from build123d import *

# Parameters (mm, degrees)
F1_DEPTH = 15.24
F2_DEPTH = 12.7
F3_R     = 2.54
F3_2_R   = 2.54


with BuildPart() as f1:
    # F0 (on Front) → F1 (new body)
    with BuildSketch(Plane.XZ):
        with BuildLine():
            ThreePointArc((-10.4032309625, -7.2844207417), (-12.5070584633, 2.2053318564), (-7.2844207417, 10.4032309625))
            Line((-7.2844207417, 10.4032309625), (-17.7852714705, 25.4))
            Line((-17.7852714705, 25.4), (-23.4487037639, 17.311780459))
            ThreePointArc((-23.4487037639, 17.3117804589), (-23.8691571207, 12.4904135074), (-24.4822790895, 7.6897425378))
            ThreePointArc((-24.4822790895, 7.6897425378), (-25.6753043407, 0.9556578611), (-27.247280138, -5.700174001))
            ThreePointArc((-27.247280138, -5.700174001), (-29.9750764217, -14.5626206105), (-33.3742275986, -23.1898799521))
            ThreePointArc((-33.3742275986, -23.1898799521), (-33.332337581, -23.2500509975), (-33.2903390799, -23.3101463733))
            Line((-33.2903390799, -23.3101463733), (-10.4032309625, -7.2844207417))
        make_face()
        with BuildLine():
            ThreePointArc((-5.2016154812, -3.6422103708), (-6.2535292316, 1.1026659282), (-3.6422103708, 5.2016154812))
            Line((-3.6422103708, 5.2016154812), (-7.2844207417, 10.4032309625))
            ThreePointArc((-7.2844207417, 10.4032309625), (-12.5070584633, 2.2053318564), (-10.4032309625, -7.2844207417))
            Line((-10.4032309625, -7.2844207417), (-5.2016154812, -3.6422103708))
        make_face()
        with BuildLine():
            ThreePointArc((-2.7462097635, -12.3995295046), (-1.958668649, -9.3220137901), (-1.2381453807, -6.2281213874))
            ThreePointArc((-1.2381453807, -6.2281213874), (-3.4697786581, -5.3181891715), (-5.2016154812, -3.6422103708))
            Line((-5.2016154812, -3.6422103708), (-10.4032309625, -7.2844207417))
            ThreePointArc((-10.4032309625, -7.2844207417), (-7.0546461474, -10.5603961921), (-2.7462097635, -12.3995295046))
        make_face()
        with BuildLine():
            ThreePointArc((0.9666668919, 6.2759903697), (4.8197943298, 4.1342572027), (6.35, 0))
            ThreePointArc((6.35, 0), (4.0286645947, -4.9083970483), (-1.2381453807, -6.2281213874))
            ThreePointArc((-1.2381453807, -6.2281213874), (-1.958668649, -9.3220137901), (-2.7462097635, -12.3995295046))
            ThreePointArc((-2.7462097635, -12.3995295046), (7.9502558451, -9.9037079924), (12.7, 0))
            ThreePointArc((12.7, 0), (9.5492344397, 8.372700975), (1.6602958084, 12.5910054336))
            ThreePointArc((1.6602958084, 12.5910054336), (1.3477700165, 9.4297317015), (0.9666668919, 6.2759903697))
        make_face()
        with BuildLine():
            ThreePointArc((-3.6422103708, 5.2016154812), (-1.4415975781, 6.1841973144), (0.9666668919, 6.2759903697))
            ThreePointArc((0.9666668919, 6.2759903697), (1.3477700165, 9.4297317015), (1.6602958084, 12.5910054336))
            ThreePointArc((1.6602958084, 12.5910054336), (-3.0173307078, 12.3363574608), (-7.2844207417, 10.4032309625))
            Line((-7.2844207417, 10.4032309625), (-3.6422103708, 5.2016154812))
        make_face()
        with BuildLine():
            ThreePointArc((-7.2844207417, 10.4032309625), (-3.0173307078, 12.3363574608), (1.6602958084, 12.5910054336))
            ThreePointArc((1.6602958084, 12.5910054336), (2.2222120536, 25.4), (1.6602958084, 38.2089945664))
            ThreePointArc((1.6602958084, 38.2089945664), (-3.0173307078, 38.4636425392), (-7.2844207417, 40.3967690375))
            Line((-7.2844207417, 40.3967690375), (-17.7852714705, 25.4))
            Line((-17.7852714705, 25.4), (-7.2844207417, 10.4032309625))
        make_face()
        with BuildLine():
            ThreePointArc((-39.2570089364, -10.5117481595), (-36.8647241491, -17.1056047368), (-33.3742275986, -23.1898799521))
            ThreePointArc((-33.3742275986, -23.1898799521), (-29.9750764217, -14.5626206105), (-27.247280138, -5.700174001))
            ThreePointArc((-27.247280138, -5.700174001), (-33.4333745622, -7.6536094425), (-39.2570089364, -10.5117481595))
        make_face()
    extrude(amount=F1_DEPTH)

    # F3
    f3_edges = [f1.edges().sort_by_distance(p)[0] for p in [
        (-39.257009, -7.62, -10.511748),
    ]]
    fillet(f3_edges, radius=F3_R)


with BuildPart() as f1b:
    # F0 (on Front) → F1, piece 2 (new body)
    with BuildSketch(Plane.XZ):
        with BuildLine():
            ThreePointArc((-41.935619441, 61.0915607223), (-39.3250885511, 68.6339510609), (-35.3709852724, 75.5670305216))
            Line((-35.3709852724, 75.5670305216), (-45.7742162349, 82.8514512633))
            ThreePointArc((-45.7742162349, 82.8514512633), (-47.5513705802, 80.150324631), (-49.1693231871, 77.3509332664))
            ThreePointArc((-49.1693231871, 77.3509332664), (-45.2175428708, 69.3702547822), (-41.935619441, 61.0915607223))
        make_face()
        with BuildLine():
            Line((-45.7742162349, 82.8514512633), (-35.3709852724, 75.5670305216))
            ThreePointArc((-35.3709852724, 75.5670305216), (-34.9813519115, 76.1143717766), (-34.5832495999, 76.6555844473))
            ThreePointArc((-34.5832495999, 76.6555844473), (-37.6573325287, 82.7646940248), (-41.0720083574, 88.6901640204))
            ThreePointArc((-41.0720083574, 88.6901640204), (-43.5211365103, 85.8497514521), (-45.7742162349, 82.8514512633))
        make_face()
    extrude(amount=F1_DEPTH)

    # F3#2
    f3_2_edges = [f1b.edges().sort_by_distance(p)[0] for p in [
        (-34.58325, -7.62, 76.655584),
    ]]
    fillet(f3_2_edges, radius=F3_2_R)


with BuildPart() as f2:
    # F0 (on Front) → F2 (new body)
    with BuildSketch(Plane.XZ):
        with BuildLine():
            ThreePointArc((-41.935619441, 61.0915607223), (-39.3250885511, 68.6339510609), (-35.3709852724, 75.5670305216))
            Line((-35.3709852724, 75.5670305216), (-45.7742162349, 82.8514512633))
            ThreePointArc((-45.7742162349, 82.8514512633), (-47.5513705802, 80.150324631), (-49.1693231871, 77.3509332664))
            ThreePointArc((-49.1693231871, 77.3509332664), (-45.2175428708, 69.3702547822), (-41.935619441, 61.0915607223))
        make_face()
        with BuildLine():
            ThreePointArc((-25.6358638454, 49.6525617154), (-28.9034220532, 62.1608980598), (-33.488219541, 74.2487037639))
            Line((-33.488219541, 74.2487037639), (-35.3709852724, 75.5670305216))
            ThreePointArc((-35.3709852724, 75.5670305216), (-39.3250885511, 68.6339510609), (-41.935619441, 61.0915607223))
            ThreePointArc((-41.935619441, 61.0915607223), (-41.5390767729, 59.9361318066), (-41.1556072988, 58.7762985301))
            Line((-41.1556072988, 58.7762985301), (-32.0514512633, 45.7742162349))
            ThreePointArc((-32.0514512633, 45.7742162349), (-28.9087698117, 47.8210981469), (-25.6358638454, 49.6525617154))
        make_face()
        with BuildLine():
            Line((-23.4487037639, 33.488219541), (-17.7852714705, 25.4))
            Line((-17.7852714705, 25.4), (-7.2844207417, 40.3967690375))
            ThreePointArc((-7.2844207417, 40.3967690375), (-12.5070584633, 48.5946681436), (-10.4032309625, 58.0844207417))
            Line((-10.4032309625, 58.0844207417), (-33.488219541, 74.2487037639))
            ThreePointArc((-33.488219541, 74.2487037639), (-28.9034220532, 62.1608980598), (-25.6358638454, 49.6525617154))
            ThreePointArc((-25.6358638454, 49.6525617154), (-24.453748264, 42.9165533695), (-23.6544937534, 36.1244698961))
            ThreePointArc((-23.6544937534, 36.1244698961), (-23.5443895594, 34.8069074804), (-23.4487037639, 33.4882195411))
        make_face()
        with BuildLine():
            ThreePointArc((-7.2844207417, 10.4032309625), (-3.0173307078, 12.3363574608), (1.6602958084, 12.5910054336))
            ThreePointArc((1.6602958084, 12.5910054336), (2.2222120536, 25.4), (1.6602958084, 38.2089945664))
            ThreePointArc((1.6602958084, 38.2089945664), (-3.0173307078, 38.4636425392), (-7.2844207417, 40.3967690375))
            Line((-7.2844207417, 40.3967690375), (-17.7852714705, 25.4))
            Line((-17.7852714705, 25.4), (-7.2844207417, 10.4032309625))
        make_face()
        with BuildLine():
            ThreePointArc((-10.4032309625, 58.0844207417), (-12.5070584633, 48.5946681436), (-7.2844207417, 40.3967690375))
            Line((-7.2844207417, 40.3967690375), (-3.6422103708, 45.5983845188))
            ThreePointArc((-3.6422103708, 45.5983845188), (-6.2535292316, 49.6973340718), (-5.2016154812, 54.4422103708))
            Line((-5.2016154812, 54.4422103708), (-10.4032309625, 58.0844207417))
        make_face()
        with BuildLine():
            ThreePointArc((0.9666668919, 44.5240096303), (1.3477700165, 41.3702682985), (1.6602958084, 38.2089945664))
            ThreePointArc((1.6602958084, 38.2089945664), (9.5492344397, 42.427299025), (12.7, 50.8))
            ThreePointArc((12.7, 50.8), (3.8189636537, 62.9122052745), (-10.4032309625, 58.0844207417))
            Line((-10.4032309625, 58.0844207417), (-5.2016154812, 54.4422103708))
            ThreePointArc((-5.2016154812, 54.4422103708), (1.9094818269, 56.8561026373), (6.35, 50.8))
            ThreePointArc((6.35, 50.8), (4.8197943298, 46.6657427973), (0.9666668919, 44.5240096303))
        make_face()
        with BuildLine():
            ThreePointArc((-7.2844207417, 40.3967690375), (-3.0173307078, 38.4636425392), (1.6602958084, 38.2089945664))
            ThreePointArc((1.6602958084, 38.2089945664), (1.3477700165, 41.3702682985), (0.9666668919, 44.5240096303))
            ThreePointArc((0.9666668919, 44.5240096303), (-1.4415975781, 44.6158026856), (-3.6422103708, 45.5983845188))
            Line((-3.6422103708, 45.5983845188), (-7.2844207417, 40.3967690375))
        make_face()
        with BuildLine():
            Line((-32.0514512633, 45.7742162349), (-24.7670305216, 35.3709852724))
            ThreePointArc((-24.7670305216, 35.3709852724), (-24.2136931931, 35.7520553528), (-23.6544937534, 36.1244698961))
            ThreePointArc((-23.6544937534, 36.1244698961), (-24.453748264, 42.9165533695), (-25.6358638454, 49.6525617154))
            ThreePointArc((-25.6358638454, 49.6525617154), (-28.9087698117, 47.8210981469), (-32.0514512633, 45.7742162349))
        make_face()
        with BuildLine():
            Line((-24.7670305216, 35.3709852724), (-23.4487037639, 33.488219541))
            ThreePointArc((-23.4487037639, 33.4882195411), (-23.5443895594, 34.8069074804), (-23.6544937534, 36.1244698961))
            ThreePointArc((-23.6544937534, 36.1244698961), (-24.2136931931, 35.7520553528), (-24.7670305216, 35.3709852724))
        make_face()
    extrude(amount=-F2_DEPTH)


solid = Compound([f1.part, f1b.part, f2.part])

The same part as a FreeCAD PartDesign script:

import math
import FreeCAD as App
import Part
import Sketcher
from FreeCAD import Vector
Q = App.Units.Quantity


def edges_at(feature, points):
    """Names of the edges that pass closest to the given points."""
    edges = feature.Shape.Edges
    near = lambda p: min(range(len(edges)), key=lambda i: edges[i].distToShape(Part.Vertex(*p))[0])
    return sorted({f"Edge{near(p) + 1}" for p in points})

doc = App.newDocument("Part")
body = doc.addObject("PartDesign::Body", "Body")

# Sketch on XZ plane
sketch1 = body.newObject("Sketcher::SketchObject", "Sketch")
sketch1.AttachmentSupport = (doc.getObject("XZ_Plane"), [""])
sketch1.MapMode = "FlatFace"
sketch1.addGeometry([
    Part.LineSegment(Vector(-17.79, 25.4, 0), Vector(-23.45, 17.31, 0)),  # 0
    Part.ArcOfCircle(Part.Circle(Vector(-144.05, 25.4, 0), Vector(0, 0, 1), 120.87), math.radians(-8.43), math.radians(-3.84)),  # 1
    Part.ArcOfCircle(Part.Circle(Vector(-144.05, 25.4, 0), Vector(0, 0, 1), 120.87), math.radians(-14.91), math.radians(-8.43)),  # 2
    Part.ArcOfCircle(Part.Circle(Vector(-17.37, -47.74, 0), Vector(0, 0, 1), 43.18), math.radians(103.22), math.radians(120.45)),  # 3
    Part.ArcOfCircle(Part.Circle(Vector(0, 0, 0), Vector(0, 0, 1), 40.64), math.radians(-165.01), math.radians(-145.21)),  # 4
    Part.ArcOfCircle(Part.Circle(Vector(0, 0, 0), Vector(0, 0, 1), 40.64), math.radians(-145.21), math.radians(-145)),  # 5
    Part.LineSegment(Vector(-33.29, -23.31, 0), Vector(-10.4, -7.28, 0)),  # 6
    Part.ArcOfCircle(Part.Circle(Vector(0, 0, 0), Vector(0, 0, 1), 12.7), math.radians(-145), math.radians(-102)),  # 7
    Part.ArcOfCircle(Part.Circle(Vector(0, 0, 0), Vector(0, 0, 1), 12.7), math.radians(-102), math.radians(0)),  # 8
    Part.ArcOfCircle(Part.Circle(Vector(0, 0, 0), Vector(0, 0, 1), 12.7), math.radians(0), math.radians(82)),  # 9
    Part.ArcOfCircle(Part.Circle(Vector(-144.05, 25.4, 0), Vector(0, 0, 1), 146.27), math.radians(-5.02), math.radians(5.02)),  # 10
    Part.ArcOfCircle(Part.Circle(Vector(0, 50.8, 0), Vector(0, 0, 1), 12.7), math.radians(-125), math.radians(-82)),  # 11
    Part.LineSegment(Vector(-7.28, 40.4, 0), Vector(-17.79, 25.4, 0)),  # 12
    Part.ArcOfCircle(Part.Circle(Vector(0, 0, 0), Vector(0, 0, 1), 6.35), math.radians(0), math.radians(81)),  # 13
    Part.ArcOfCircle(Part.Circle(Vector(0, 0, 0), Vector(0, 0, 1), 6.35), math.radians(-101), math.radians(0)),  # 14
    Part.ArcOfCircle(Part.Circle(Vector(0, 0, 0), Vector(0, 0, 1), 6.35), math.radians(-145), math.radians(-101)),  # 15
    Part.ArcOfCircle(Part.Circle(Vector(0, 0, 0), Vector(0, 0, 1), 6.35), math.radians(125), math.radians(215)),  # 16
    Part.ArcOfCircle(Part.Circle(Vector(0, 0, 0), Vector(0, 0, 1), 6.35), math.radians(81), math.radians(125)),  # 17
], False)
sketch1.addConstraint([
    Sketcher.Constraint("Coincident", 0, 2, 1, 2),
    Sketcher.Constraint("Tangent", 1, 1, 2, 2),
    Sketcher.Constraint("Coincident", 2, 1, 3, 1),
    Sketcher.Constraint("Coincident", 3, 2, 4, 1),
    Sketcher.Constraint("Tangent", 4, 2, 5, 1),
    Sketcher.Constraint("Coincident", 5, 2, 6, 1),
    Sketcher.Constraint("Coincident", 6, 2, 7, 1),
    Sketcher.Constraint("Tangent", 7, 2, 8, 1),
    Sketcher.Constraint("Tangent", 8, 2, 9, 1),
    Sketcher.Constraint("Coincident", 9, 2, 10, 1),
    Sketcher.Constraint("Coincident", 10, 2, 11, 2),
    Sketcher.Constraint("Coincident", 11, 1, 12, 1),
    Sketcher.Constraint("Coincident", 12, 2, 0, 1),
    Sketcher.Constraint("Tangent", 13, 1, 14, 2),
    Sketcher.Constraint("Tangent", 14, 1, 15, 2),
    Sketcher.Constraint("Tangent", 15, 1, 16, 2),
    Sketcher.Constraint("Tangent", 16, 1, 17, 2),
    Sketcher.Constraint("Tangent", 17, 1, 13, 2),
    Sketcher.Constraint("Coincident", 4, 3, -1, 1),
    Sketcher.Constraint("Coincident", 7, 3, -1, 1),
    Sketcher.Constraint("Coincident", 9, 3, -1, 1),
    Sketcher.Constraint("Coincident", 13, 3, -1, 1),
    Sketcher.Constraint("Coincident", 15, 3, -1, 1),
    Sketcher.Constraint("Coincident", 10, 3, 1, 3),
    Sketcher.Constraint("Equal", 1, 2),
    Sketcher.Constraint("Equal", 9, 11),
    Sketcher.Constraint("PointOnObject", 11, 3, -2),
    Sketcher.Constraint("PointOnObject", 8, 2, -1),
    Sketcher.Constraint("PointOnObject", 13, 1, -1),
    Sketcher.Constraint("Parallel", 0, 12),
    Sketcher.Constraint("Horizontal", 10, 3, 12, 2),
    Sketcher.Constraint("Vertical", 9, 2, 10, 2),
    Sketcher.Constraint("Radius", 3, Q("1.7 in")),
    Sketcher.Constraint("Radius", 4, Q("1.6 in")),
    Sketcher.Constraint("Radius", 7, Q("0.5 in")),
    Sketcher.Constraint("Radius", 13, Q("0.25 in")),
    Sketcher.Constraint("DistanceY", -1, 1, 1, 3, Q("1 in")),
    Sketcher.Constraint("Angle", 0, Q("-125 deg")),
    Sketcher.Constraint("Angle", 6, Q("35 deg")),
    Sketcher.Constraint("Radius", 1, Q("120.87277 mm")),
    Sketcher.Constraint("Radius", 5, Q("40.639982 mm")),
    Sketcher.Constraint("Radius", 10, Q("146.27277 mm")),
    Sketcher.Constraint("DistanceX", 2, 1, 1, 1, Q("2.765001 mm")),
    Sketcher.Constraint("DistanceY", 5, 2, 3, 2, Q("12.798398 mm")),
    Sketcher.Constraint("DistanceX", 0, 2, 10, 2, Q("25.109 mm")),
    Sketcher.Constraint("DistanceX", 15, 1, 5, 3, Q("5.2016 mm")),
    Sketcher.Constraint("DistanceX", 1, 3, -1, 1, Q("144.050558 mm")),
    Sketcher.Constraint("DistanceX", 1, 1, -1, 1, Q("24.482279 mm")),
    Sketcher.Constraint("DistanceY", 3, 2, -1, 1, Q("10.511748 mm")),
    Sketcher.Constraint("DistanceY", 4, 2, -1, 1, Q("23.18988 mm")),
    Sketcher.Constraint("DistanceX", 7, 2, -1, 1, Q("2.74621 mm")),
    Sketcher.Constraint("DistanceY", 14, 1, -1, 1, Q("6.228121 mm")),
    Sketcher.Constraint("DistanceX", 16, 1, -1, 1, Q("3.64221 mm")),
    Sketcher.Constraint("DistanceY", -1, 1, 17, 1, Q("6.27599 mm")),
])
pad1 = body.newObject("PartDesign::Pad", "Pad")
pad1.Profile = sketch1
pad1.Length = Q("0.6 in")
doc.recompute()

fillet = body.newObject("PartDesign::Fillet", "Fillet")
fillet.Base = (pad1, edges_at(pad1, [(-39.257, -7.62, -10.512)]))
fillet.Radius = Q("0.1 in")
body2 = doc.addObject("PartDesign::Body", "Body001")

# Sketch on XZ plane
sketch2 = body2.newObject("Sketcher::SketchObject", "Sketch001")
sketch2.AttachmentSupport = (doc.getObject("XZ_Plane001"), [""])
sketch2.MapMode = "FlatFace"
sketch2.addGeometry([
    Part.ArcOfCircle(Part.Circle(Vector(0, 50.8, 0), Vector(0, 0, 1), 43.2), math.radians(145), math.radians(166)),  # 0
    Part.ArcOfCircle(Part.Circle(Vector(0, 50.8, 0), Vector(0, 0, 1), 43.2), math.radians(143.22), math.radians(145)),  # 1
    Part.ArcOfCircle(Part.Circle(Vector(-144.1, 25.4, 0), Vector(0, 0, 1), 120.9), math.radians(25.09), math.radians(31.57)),  # 2
    Part.ArcOfCircle(Part.Circle(Vector(0, 50.8, 0), Vector(0, 0, 1), 55.9), math.radians(137.31), math.radians(145)),  # 3
    Part.ArcOfCircle(Part.Circle(Vector(0, 50.8, 0), Vector(0, 0, 1), 55.9), math.radians(145), math.radians(151.63)),  # 4
    Part.ArcOfCircle(Part.Circle(Vector(-144.1, 25.4, 0), Vector(0, 0, 1), 108.2), math.radians(19.27), math.radians(28.7)),  # 5
], False)
sketch2.addConstraint([
    Sketcher.Constraint("Tangent", 0, 1, 1, 2),
    Sketcher.Constraint("Coincident", 1, 1, 2, 1),
    Sketcher.Constraint("Coincident", 2, 2, 3, 1),
    Sketcher.Constraint("Tangent", 3, 2, 4, 1),
    Sketcher.Constraint("Coincident", 4, 2, 5, 2),
    Sketcher.Constraint("Coincident", 5, 1, 0, 2),
    Sketcher.Constraint("Coincident", 3, 3, 0, 3),
    Sketcher.Constraint("Coincident", 5, 3, 2, 3),
    Sketcher.Constraint("Equal", 0, 1),
    Sketcher.Constraint("Equal", 3, 4),
    Sketcher.Constraint("PointOnObject", 0, 3, -2),
    Sketcher.Constraint("Radius", 0, Q("1.7 in")),
    Sketcher.Constraint("Radius", 3, Q("2.2 in")),
    Sketcher.Constraint("DistanceY", -1, 1, 0, 3, Q("2 in")),
    Sketcher.Constraint("DistanceY", -1, 1, 2, 3, Q("1 in")),
    Sketcher.Constraint("Radius", 2, Q("120.87277 mm")),
    Sketcher.Constraint("Radius", 5, Q("108.17277 mm")),
    Sketcher.Constraint("DistanceX", 4, 2, -1, 1, Q("1.9358001 in")),
    Sketcher.Constraint("DistanceY", -1, 1, 0, 1, Q("75.567031 mm")),
    Sketcher.Constraint("DistanceY", -1, 1, 3, 2, Q("82.851451 mm")),
])
pad2 = body2.newObject("PartDesign::Pad", "Pad001")
pad2.Profile = sketch2
pad2.Length = Q("0.6 in")
doc.recompute()

fillet2 = body2.newObject("PartDesign::Fillet", "Fillet001")
fillet2.Base = (pad2, edges_at(pad2, [(-34.583, -7.62, 76.656)]))
fillet2.Radius = Q("0.1 in")
body3 = doc.addObject("PartDesign::Body", "Body002")

# Sketch on XZ plane
sketch3 = body3.newObject("Sketcher::SketchObject", "Sketch002")
sketch3.AttachmentSupport = (doc.getObject("XZ_Plane002"), [""])
sketch3.MapMode = "FlatFace"
sketch3.addGeometry([
    Part.ArcOfCircle(Part.Circle(Vector(-144.1, 25.4, 0), Vector(0, 0, 1), 146.3), math.radians(-5.02), math.radians(5.02)),  # 0
    Part.ArcOfCircle(Part.Circle(Vector(0, 50.8, 0), Vector(0, 0, 1), 12.7), math.radians(-82), math.radians(0)),  # 1
    Part.ArcOfCircle(Part.Circle(Vector(0, 50.8, 0), Vector(0, 0, 1), 12.7), math.radians(0), math.radians(145)),  # 2
    Part.LineSegment(Vector(-10.4, 58.1, 0), Vector(-33.5, 74.2, 0)),  # 3
    Part.LineSegment(Vector(-33.5, 74.2, 0), Vector(-35.4, 75.6, 0)),  # 4
    Part.LineSegment(Vector(-35.4, 75.6, 0), Vector(-45.8, 82.9, 0)),  # 5
    Part.ArcOfCircle(Part.Circle(Vector(0, 50.8, 0), Vector(0, 0, 1), 55.9), math.radians(145), math.radians(151.63)),  # 6
    Part.ArcOfCircle(Part.Circle(Vector(-144.1, 25.4, 0), Vector(0, 0, 1), 108.2), math.radians(19.27), math.radians(28.7)),  # 7
    Part.ArcOfCircle(Part.Circle(Vector(-144.1, 25.4, 0), Vector(0, 0, 1), 108.2), math.radians(17.97), math.radians(19.27)),  # 8
    Part.LineSegment(Vector(-41.2, 58.8, 0), Vector(-32.1, 45.8, 0)),  # 9
    Part.LineSegment(Vector(-32.1, 45.8, 0), Vector(-24.8, 35.4, 0)),  # 10
    Part.LineSegment(Vector(-24.8, 35.4, 0), Vector(-23.4, 33.5, 0)),  # 11
    Part.LineSegment(Vector(-23.4, 33.5, 0), Vector(-17.8, 25.4, 0)),  # 12
    Part.LineSegment(Vector(-17.8, 25.4, 0), Vector(-7.3, 10.4, 0)),  # 13
    Part.ArcOfCircle(Part.Circle(Vector(0, 0, 0), Vector(0, 0, 1), 12.7), math.radians(82), math.radians(125)),  # 14
    Part.ArcOfCircle(Part.Circle(Vector(0, 50.8, 0), Vector(0, 0, 1), 6.3), math.radians(-81), math.radians(145)),  # 15
    Part.ArcOfCircle(Part.Circle(Vector(0, 50.8, 0), Vector(0, 0, 1), 6.3), math.radians(-125), math.radians(-81)),  # 16
    Part.ArcOfCircle(Part.Circle(Vector(0, 50.8, 0), Vector(0, 0, 1), 6.3), math.radians(145), math.radians(235)),  # 17
], False)
sketch3.addConstraint([
    Sketcher.Constraint("Coincident", 0, 2, 1, 1),
    Sketcher.Constraint("Tangent", 1, 2, 2, 1),
    Sketcher.Constraint("Coincident", 2, 2, 3, 1),
    Sketcher.Constraint("Coincident", 3, 2, 4, 1),
    Sketcher.Constraint("Coincident", 4, 2, 5, 1),
    Sketcher.Constraint("Coincident", 5, 2, 6, 1),
    Sketcher.Constraint("Coincident", 6, 2, 7, 2),
    Sketcher.Constraint("Tangent", 7, 1, 8, 2),
    Sketcher.Constraint("Coincident", 8, 1, 9, 1),
    Sketcher.Constraint("Coincident", 9, 2, 10, 1),
    Sketcher.Constraint("Coincident", 10, 2, 11, 1),
    Sketcher.Constraint("Coincident", 11, 2, 12, 1),
    Sketcher.Constraint("Coincident", 12, 2, 13, 1),
    Sketcher.Constraint("Coincident", 13, 2, 14, 2),
    Sketcher.Constraint("Coincident", 14, 1, 0, 1),
    Sketcher.Constraint("Tangent", 15, 1, 16, 2),
    Sketcher.Constraint("Tangent", 16, 1, 17, 2),
    Sketcher.Constraint("Tangent", 17, 1, 15, 2),
    Sketcher.Constraint("Coincident", 14, 3, -1, 1),
    Sketcher.Constraint("Coincident", 6, 3, 1, 3),
    Sketcher.Constraint("Coincident", 7, 3, 0, 3),
    Sketcher.Constraint("Coincident", 15, 3, 1, 3),
    Sketcher.Constraint("Equal", 1, 2),
    Sketcher.Constraint("Equal", 7, 8),
    Sketcher.Constraint("Equal", 2, 14),
    Sketcher.Constraint("PointOnObject", 1, 3, -2),
    Sketcher.Constraint("Parallel", 3, 4),
    Sketcher.Constraint("Parallel", 4, 5),
    Sketcher.Constraint("Parallel", 9, 10),
    Sketcher.Constraint("Parallel", 10, 11),
    Sketcher.Constraint("Parallel", 11, 12),
    Sketcher.Constraint("Parallel", 12, 13),
    Sketcher.Constraint("Horizontal", 17, 3, 1, 2),
    Sketcher.Constraint("Horizontal", 8, 3, 12, 2),
    Sketcher.Constraint("Vertical", 0, 2, 14, 1),
    Sketcher.Constraint("Equal", 5, 10),
    Sketcher.Constraint("Equal", 4, 11),
    Sketcher.Constraint("Radius", 1, Q("0.5 in")),
    Sketcher.Constraint("Radius", 6, Q("2.2 in")),
    Sketcher.Constraint("Radius", 15, Q("0.25 in")),
    Sketcher.Constraint("DistanceY", -1, 1, 0, 3, Q("1 in")),
    Sketcher.Constraint("Angle", 3, Q("145 deg")),
    Sketcher.Constraint("Angle", 9, Q("-55 deg")),
    Sketcher.Constraint("Distance", 5, Q("0.5 in")),
    Sketcher.Constraint("Radius", 0, Q("146.27277 mm")),
    Sketcher.Constraint("Radius", 7, Q("108.17277 mm")),
    Sketcher.Constraint("DistanceX", 6, 2, -1, 1, Q("1.9358001 in")),
    Sketcher.Constraint("DistanceY", -1, 1, 8, 1, Q("58.776299 mm")),
    Sketcher.Constraint("DistanceX", 7, 1, 3, 2, Q("8.4474 mm")),
    Sketcher.Constraint("DistanceX", 10, 2, 2, 2, Q("14.3638 mm")),
    Sketcher.Constraint("DistanceX", 11, 2, 0, 2, Q("25.109 mm")),
    Sketcher.Constraint("DistanceY", 11, 2, 2, 2, Q("24.596201 mm")),
    Sketcher.Constraint("DistanceY", -1, 1, 15, 1, Q("44.52401 mm")),
    Sketcher.Constraint("DistanceX", 16, 1, -1, 1, Q("3.64221 mm")),
    Sketcher.Constraint("DistanceY", -1, 1, 17, 1, Q("54.44221 mm")),
])
pad3 = body3.newObject("PartDesign::Pad", "Pad002")
pad3.Profile = sketch3
pad3.Length = Q("0.5 in")
pad3.Reversed = True

doc.recompute()
